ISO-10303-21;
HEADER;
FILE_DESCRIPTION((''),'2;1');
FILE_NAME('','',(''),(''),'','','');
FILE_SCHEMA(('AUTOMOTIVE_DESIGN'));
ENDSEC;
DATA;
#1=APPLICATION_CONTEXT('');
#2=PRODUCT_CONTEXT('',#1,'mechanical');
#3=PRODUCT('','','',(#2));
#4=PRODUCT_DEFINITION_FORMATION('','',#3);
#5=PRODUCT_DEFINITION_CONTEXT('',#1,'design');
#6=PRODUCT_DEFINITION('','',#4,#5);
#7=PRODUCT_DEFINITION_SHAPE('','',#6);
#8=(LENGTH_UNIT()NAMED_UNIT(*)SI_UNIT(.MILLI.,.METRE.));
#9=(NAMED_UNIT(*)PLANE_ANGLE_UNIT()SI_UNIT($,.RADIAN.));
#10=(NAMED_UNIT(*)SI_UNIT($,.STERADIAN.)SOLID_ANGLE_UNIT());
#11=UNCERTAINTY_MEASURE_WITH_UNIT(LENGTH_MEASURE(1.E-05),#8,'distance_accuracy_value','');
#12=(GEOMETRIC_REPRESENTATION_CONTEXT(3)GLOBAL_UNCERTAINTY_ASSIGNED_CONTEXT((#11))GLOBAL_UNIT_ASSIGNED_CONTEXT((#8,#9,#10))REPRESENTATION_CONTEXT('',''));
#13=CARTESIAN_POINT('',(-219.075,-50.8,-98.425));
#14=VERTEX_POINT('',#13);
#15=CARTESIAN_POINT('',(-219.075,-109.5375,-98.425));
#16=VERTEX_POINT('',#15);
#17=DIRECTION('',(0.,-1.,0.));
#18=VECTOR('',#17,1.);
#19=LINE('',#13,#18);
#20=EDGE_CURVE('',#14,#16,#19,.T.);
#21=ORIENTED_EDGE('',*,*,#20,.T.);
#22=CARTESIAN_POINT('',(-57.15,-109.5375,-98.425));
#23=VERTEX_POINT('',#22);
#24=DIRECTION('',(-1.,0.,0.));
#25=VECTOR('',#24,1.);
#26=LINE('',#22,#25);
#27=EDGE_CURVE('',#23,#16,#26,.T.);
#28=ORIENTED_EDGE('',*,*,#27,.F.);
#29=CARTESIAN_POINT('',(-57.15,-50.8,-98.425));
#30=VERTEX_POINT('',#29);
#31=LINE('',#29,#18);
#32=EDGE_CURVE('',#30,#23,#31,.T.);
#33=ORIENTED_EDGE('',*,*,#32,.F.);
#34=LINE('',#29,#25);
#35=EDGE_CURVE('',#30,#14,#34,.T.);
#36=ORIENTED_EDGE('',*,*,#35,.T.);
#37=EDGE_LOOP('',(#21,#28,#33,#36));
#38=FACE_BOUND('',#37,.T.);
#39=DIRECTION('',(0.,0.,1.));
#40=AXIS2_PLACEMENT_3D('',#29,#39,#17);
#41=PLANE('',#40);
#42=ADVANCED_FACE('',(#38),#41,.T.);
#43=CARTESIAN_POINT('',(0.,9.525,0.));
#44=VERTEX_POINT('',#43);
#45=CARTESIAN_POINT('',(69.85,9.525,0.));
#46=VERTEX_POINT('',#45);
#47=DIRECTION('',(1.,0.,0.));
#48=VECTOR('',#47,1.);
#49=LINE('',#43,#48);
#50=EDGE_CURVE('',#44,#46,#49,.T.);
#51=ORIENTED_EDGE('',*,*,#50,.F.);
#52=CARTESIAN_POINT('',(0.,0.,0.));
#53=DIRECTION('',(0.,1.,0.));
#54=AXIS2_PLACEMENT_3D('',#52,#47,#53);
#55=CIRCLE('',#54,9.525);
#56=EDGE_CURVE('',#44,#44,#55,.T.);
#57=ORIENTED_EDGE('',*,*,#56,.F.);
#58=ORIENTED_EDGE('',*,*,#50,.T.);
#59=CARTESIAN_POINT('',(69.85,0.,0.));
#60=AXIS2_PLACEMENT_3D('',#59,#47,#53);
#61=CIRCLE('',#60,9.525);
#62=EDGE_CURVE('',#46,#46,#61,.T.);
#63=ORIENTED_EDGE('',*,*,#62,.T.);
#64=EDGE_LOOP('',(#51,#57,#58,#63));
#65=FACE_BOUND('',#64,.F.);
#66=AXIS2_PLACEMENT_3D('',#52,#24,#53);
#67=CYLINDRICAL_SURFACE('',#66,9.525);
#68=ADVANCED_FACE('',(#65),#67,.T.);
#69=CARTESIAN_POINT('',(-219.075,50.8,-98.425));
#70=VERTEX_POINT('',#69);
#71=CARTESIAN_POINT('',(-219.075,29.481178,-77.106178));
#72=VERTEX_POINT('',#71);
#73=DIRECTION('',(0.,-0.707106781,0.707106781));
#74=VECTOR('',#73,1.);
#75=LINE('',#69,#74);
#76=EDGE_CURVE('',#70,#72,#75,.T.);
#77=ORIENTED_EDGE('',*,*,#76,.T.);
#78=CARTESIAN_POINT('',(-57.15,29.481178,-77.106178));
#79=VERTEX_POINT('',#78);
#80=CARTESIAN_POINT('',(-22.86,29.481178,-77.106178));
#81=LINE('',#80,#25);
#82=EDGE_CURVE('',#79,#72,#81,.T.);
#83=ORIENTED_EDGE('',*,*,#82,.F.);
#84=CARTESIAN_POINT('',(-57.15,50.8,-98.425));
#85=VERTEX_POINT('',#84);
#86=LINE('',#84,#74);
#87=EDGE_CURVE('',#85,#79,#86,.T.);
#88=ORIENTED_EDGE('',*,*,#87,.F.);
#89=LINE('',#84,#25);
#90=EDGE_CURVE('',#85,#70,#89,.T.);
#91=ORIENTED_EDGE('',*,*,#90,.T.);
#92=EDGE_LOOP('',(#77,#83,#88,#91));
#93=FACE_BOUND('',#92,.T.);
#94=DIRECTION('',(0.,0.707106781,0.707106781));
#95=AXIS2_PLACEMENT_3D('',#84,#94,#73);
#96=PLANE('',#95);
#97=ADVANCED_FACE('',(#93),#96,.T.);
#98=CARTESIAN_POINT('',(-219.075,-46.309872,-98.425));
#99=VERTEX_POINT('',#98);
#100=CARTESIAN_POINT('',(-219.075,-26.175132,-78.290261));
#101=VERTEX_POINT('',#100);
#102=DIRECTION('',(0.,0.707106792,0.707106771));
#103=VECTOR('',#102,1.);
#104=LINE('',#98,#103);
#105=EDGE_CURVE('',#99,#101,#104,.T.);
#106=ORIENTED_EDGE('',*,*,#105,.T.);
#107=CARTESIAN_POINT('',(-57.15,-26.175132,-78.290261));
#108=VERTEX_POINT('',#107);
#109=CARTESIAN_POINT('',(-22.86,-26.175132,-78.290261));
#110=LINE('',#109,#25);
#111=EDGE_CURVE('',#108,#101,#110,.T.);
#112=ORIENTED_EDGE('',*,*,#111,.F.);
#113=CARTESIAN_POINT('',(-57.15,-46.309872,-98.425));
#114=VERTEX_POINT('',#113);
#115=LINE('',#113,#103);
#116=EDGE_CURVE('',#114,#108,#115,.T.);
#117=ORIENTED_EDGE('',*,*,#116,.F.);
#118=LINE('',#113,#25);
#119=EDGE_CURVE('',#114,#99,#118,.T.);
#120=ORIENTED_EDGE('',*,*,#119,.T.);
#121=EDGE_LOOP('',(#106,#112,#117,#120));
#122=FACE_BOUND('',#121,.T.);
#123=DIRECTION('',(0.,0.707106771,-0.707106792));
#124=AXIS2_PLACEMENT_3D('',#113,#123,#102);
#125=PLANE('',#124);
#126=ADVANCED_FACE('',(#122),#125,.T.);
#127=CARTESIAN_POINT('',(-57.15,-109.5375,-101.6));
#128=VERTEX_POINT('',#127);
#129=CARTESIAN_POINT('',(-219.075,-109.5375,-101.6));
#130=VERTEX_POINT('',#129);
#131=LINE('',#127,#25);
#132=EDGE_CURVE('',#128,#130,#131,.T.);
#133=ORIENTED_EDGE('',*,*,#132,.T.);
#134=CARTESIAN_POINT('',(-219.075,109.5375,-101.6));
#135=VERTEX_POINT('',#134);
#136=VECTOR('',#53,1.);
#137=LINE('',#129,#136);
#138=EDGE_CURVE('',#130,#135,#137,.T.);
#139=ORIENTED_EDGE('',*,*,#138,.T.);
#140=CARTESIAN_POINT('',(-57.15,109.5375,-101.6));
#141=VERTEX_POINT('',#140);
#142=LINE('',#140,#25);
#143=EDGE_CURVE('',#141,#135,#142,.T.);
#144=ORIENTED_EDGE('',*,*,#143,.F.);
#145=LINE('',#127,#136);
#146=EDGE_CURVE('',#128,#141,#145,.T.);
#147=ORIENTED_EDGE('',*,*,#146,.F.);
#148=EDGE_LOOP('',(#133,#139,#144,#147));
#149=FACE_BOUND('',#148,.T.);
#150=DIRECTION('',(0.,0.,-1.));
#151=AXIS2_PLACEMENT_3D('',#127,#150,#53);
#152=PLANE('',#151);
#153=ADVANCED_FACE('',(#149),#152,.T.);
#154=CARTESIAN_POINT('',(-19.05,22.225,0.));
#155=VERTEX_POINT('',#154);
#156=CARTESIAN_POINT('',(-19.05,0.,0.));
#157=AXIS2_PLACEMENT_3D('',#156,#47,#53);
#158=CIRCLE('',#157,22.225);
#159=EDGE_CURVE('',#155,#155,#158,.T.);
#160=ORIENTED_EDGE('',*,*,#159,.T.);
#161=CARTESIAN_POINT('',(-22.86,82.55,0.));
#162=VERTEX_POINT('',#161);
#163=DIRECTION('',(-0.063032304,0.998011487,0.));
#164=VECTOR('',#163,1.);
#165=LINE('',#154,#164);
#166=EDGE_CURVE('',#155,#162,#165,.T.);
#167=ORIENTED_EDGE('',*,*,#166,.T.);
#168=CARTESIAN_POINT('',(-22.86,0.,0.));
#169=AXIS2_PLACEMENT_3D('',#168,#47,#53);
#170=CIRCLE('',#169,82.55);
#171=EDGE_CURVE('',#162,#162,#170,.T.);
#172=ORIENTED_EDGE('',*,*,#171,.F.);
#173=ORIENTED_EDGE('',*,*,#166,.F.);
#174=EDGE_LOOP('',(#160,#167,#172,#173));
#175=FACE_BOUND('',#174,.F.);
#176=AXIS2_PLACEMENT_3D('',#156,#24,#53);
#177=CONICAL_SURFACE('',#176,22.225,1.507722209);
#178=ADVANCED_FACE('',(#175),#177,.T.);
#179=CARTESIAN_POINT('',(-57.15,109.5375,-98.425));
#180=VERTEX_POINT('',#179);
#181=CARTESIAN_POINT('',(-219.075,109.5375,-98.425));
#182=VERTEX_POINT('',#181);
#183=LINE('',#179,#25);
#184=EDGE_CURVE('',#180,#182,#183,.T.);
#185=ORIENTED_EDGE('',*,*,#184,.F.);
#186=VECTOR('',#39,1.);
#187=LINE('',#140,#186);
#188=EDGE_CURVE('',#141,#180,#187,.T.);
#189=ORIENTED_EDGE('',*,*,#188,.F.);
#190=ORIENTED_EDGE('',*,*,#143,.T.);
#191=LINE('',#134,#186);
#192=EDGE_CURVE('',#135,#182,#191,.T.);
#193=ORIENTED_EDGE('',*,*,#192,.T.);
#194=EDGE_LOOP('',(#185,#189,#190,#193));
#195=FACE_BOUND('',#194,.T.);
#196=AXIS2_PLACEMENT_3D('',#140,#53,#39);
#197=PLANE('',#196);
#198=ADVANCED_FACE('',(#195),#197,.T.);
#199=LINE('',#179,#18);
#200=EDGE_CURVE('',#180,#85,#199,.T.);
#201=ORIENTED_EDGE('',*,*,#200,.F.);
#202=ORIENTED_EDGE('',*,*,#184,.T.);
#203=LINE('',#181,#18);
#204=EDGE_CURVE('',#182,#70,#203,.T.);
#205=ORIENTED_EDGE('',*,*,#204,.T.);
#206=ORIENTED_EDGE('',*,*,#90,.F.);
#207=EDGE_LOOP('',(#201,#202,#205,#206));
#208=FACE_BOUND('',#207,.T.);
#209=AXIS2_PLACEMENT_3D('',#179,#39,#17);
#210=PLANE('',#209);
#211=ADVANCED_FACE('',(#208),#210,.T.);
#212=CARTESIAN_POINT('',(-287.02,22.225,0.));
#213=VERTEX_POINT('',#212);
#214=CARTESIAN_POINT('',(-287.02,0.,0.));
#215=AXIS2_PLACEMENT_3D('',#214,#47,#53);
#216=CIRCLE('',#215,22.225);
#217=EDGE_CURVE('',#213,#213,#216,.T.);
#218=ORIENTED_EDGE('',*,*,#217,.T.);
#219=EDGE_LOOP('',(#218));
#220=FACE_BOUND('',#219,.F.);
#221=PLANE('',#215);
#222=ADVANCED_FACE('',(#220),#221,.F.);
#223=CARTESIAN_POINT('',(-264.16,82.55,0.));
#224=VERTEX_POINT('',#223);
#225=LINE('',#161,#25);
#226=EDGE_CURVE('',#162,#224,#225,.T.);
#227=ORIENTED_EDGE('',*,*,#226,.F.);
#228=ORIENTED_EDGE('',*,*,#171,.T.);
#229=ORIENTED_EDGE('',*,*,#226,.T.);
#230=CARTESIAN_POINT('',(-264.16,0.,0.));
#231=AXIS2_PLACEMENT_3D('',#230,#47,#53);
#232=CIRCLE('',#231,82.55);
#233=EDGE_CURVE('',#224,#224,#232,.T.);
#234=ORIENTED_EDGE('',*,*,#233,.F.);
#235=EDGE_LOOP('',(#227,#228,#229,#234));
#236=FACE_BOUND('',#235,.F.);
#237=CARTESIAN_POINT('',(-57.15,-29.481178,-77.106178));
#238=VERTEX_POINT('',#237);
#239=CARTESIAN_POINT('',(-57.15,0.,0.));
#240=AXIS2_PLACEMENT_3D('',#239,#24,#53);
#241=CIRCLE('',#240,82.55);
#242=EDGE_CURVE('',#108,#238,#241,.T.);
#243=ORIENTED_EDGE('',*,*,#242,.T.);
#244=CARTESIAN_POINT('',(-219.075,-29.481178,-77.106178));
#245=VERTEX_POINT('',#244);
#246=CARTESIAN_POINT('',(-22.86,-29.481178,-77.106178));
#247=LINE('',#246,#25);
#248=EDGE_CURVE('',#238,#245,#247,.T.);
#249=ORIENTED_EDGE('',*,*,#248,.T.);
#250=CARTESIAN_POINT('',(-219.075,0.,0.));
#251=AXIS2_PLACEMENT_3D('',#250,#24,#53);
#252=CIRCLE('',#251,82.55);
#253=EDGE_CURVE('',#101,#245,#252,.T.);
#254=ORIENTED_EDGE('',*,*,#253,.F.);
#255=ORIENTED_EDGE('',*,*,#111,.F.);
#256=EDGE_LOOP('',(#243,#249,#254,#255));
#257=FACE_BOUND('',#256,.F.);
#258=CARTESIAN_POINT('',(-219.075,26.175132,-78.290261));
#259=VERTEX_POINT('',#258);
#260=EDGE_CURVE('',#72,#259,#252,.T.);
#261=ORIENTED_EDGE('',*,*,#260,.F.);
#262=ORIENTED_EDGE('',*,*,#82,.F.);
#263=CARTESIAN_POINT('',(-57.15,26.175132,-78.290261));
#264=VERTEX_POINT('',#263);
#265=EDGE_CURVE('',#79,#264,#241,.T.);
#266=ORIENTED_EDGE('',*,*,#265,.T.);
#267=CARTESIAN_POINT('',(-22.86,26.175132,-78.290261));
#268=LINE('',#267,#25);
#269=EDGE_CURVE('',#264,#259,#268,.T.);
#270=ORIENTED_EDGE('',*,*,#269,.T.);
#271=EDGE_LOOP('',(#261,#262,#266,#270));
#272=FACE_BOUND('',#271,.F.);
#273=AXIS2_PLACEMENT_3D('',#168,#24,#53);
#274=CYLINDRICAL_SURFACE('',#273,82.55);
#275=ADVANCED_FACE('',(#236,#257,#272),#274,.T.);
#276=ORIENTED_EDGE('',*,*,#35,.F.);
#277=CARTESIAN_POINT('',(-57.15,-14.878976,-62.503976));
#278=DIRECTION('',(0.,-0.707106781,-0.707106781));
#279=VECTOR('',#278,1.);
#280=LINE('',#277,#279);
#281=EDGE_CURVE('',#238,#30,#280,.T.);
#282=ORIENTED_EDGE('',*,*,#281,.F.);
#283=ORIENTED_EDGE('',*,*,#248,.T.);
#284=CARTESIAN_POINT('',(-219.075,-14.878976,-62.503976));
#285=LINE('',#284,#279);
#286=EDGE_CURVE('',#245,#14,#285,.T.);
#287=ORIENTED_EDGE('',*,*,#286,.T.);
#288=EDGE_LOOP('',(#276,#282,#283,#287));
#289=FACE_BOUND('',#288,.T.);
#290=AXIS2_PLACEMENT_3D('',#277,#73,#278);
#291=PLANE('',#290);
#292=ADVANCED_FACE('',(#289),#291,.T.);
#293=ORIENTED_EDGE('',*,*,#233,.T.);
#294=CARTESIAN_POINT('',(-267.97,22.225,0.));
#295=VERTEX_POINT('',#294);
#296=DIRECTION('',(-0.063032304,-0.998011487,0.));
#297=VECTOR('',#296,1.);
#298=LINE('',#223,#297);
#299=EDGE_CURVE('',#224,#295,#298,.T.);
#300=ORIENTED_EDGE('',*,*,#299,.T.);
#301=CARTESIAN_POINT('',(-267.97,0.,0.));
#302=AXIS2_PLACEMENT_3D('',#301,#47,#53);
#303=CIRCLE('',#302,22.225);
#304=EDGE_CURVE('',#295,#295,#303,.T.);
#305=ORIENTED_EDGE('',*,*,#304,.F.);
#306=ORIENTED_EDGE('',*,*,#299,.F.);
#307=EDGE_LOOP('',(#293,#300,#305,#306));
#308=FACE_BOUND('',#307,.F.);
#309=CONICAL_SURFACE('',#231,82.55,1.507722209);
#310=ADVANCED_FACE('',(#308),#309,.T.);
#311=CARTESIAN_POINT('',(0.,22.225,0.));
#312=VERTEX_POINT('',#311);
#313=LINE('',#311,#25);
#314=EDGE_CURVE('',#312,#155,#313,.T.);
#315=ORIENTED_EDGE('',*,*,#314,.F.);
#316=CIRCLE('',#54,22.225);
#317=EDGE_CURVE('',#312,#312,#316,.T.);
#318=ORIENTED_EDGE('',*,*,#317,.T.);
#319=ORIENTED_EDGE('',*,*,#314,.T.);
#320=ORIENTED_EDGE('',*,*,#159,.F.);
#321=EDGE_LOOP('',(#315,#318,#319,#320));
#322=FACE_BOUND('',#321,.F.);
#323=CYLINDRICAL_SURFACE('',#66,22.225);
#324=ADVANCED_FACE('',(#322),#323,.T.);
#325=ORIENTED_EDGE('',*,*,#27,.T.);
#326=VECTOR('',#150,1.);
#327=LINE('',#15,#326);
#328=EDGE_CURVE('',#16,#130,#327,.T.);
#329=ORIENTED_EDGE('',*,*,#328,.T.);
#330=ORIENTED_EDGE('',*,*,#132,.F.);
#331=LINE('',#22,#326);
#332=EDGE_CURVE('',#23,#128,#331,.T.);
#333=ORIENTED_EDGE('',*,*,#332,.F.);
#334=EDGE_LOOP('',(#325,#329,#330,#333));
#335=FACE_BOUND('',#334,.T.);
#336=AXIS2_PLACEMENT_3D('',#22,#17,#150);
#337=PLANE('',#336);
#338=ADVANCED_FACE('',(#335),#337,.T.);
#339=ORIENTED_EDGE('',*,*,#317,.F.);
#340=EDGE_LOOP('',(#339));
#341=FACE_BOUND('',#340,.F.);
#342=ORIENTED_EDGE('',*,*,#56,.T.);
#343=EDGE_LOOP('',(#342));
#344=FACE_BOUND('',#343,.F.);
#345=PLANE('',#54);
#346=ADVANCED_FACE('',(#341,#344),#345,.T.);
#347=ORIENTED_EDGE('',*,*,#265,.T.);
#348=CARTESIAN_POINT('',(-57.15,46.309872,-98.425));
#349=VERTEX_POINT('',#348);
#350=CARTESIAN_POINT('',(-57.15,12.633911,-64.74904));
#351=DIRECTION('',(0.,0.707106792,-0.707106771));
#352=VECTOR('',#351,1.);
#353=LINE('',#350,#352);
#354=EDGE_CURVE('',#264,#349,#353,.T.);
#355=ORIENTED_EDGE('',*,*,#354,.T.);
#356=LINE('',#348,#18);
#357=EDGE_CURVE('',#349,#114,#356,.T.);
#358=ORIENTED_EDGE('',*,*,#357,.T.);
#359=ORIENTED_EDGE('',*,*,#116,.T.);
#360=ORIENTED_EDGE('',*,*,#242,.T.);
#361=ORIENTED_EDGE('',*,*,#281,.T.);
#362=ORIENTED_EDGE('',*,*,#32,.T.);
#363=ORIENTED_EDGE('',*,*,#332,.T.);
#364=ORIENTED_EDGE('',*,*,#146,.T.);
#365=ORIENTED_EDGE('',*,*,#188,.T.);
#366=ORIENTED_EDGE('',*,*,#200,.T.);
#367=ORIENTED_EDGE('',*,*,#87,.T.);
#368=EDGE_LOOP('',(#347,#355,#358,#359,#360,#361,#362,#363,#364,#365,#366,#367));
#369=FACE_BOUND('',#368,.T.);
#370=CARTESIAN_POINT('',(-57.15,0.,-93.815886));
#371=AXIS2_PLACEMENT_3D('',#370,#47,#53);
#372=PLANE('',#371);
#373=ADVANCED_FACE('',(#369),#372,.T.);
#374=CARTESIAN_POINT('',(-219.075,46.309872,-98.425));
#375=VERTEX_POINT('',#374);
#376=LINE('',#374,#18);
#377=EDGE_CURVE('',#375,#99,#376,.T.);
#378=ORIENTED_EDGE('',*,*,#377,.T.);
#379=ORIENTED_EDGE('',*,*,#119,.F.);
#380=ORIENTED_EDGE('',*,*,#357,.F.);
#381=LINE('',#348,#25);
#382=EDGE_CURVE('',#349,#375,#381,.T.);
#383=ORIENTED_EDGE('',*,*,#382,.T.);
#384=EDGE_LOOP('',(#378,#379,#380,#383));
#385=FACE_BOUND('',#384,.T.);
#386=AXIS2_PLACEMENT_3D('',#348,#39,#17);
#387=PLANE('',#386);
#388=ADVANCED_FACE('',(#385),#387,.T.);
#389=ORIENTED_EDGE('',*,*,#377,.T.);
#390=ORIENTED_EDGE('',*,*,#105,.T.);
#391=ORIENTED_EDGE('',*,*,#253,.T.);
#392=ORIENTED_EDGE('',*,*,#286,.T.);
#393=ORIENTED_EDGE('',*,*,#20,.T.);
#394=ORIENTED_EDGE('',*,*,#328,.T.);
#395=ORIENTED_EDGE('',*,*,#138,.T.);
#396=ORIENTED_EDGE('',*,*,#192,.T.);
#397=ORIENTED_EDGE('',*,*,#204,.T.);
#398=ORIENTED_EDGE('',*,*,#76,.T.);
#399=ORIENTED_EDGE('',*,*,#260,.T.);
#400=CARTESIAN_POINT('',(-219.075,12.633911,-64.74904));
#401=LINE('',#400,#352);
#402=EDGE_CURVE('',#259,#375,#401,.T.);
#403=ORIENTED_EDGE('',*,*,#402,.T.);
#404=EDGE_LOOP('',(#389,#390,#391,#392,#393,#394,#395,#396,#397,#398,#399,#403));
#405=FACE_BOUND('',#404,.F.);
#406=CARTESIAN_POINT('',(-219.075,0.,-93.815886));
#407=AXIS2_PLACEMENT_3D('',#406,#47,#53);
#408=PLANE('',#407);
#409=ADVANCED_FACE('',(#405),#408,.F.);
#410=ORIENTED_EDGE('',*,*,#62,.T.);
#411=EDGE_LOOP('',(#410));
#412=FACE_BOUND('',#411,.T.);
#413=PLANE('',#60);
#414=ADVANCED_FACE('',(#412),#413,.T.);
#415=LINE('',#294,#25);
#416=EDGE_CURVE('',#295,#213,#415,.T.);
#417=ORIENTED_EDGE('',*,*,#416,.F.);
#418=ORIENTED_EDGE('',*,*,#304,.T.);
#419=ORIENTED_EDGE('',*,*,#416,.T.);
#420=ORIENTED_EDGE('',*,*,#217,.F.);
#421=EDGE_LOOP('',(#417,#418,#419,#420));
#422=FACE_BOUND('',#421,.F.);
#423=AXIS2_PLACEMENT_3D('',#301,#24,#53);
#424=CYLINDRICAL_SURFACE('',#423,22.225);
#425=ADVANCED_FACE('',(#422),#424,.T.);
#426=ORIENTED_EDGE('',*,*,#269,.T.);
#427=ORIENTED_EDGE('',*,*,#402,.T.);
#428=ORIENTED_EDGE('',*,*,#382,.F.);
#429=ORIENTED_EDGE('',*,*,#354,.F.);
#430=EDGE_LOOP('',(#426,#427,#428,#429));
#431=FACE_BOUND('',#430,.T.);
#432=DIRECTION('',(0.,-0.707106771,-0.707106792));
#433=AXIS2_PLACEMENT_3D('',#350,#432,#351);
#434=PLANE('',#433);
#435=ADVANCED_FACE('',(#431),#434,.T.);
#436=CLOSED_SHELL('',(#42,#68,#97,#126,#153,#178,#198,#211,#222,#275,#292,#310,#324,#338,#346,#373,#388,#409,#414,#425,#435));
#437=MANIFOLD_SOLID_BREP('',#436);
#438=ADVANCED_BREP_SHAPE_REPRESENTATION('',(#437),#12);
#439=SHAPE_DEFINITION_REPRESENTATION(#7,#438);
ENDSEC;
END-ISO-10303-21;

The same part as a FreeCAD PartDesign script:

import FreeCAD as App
import Part
import Sketcher
Q = App.Units.Quantity

doc = App.newDocument("Part")
body = doc.addObject("PartDesign::Body", "Body")

# Sketch on XY plane
sketch1 = body.newObject("Sketcher::SketchObject", "Sketch")
sketch1.AttachmentSupport = (doc.getObject("XY_Plane"), [""])
sketch1.MapMode = "FlatFace"
sketch1.addGeometry([
    Part.LineSegment(App.Vector(-287, 0, 0), App.Vector(0, 0, 0)),  # 0
    Part.LineSegment(App.Vector(0, 0, 0), App.Vector(0, 22, 0)),  # 1
    Part.LineSegment(App.Vector(0, 22, 0), App.Vector(-19, 22, 0)),  # 2
    Part.LineSegment(App.Vector(-19, 22, 0), App.Vector(-23, 83, 0)),  # 3
    Part.LineSegment(App.Vector(-23, 83, 0), App.Vector(-264, 83, 0)),  # 4
    Part.LineSegment(App.Vector(-264, 83, 0), App.Vector(-268, 22, 0)),  # 5
    Part.LineSegment(App.Vector(-268, 22, 0), App.Vector(-287, 22, 0)),  # 6
    Part.LineSegment(App.Vector(-287, 22, 0), App.Vector(-287, 0, 0)),  # 7
], False)
sketch1.addConstraint([
    Sketcher.Constraint("Coincident", 0, 2, 1, 1),
    Sketcher.Constraint("Coincident", 1, 2, 2, 1),
    Sketcher.Constraint("Coincident", 2, 2, 3, 1),
    Sketcher.Constraint("Coincident", 3, 2, 4, 1),
    Sketcher.Constraint("Coincident", 4, 2, 5, 1),
    Sketcher.Constraint("Coincident", 5, 2, 6, 1),
    Sketcher.Constraint("Coincident", 6, 2, 7, 1),
    Sketcher.Constraint("Coincident", 7, 2, 0, 1),
    Sketcher.Constraint("Horizontal", 0),
    Sketcher.Constraint("Vertical", 1),
    Sketcher.Constraint("Horizontal", 2),
    Sketcher.Constraint("Horizontal", 4),
    Sketcher.Constraint("Horizontal", 6),
    Sketcher.Constraint("Vertical", 7),
    Sketcher.Constraint("Coincident", 0, 2, -1, 1),
    Sketcher.Constraint("Horizontal", 2, 2, 5, 2),
    Sketcher.Constraint("Equal", 2, 6),
    Sketcher.Constraint("Equal", 3, 5),
    Sketcher.Constraint("DistanceX", 0, 1, 0, 2, Q("11.3 in")),
    Sketcher.Constraint("DistanceX", 4, 2, 4, 1, Q("9.5 in")),
    Sketcher.Constraint("DistanceX", 2, 2, 2, 1, Q("0.75 in")),
    Sketcher.Constraint("DistanceY", 1, 1, 1, 2, Q("0.875 in")),
    Sketcher.Constraint("DistanceY", -1, 1, 3, 2, Q("3.25 in")),
])
revolution = body.newObject("PartDesign::Revolution", "Revolution")
revolution.Profile = sketch1
revolution.ReferenceAxis = (sketch1, ["H_Axis"])
revolution.Angle = 360

# Sketch on YZ plane
sketch2 = body.newObject("Sketcher::SketchObject", "Sketch001")
sketch2.AttachmentSupport = (doc.getObject("YZ_Plane"), [""])
sketch2.MapMode = "FlatFace"
sketch2.addGeometry(Part.Circle(App.Vector(0, 0, 0), App.Vector(0, 0, 1), 10), False)
sketch2.addConstraint([
    Sketcher.Constraint("Coincident", 0, 3, -1, 1),
    Sketcher.Constraint("Diameter", 0, Q("0.75 in")),
])
pad1 = body.newObject("PartDesign::Pad", "Pad")
pad1.Profile = sketch2
pad1.Length = Q("2.75 in")

# Sketch on YZ plane
sketch3 = body.newObject("Sketcher::SketchObject", "Sketch002")
sketch3.AttachmentSupport = (doc.getObject("YZ_Plane"), [""])
sketch3.MapMode = "FlatFace"
sketch3.AttachmentOffset = App.Placement(App.Vector(0, 0, -2.25 * 25.4), App.Rotation())
sketch3.addGeometry([
    Part.LineSegment(App.Vector(-50.8, -98.4, 0), App.Vector(-109.5, -98.4, 0)),  # 0
    Part.LineSegment(App.Vector(-109.5, -98.4, 0), App.Vector(-109.5, -101.6, 0)),  # 1
    Part.LineSegment(App.Vector(-109.5, -101.6, 0), App.Vector(109.5, -101.6, 0)),  # 2
    Part.LineSegment(App.Vector(109.5, -101.6, 0), App.Vector(109.5, -98.4, 0)),  # 3
    Part.LineSegment(App.Vector(109.5, -98.4, 0), App.Vector(50.8, -98.4, 0)),  # 4
    Part.LineSegment(App.Vector(50.8, -98.4, 0), App.Vector(14.9, -62.5, 0)),  # 5
    Part.LineSegment(App.Vector(14.9, -62.5, 0), App.Vector(12.6, -64.7, 0)),  # 6
    Part.LineSegment(App.Vector(12.6, -64.7, 0), App.Vector(46.3, -98.4, 0)),  # 7
    Part.LineSegment(App.Vector(46.3, -98.4, 0), App.Vector(-46.3, -98.4, 0)),  # 8
    Part.LineSegment(App.Vector(-46.3, -98.4, 0), App.Vector(-12.6, -64.7, 0)),  # 9
    Part.LineSegment(App.Vector(-12.6, -64.7, 0), App.Vector(-14.9, -62.5, 0)),  # 10
    Part.LineSegment(App.Vector(-14.9, -62.5, 0), App.Vector(-50.8, -98.4, 0)),  # 11
], False)
sketch3.addConstraint([
    Sketcher.Constraint("Coincident", 0, 2, 1, 1),
    Sketcher.Constraint("Coincident", 1, 2, 2, 1),
    Sketcher.Constraint("Coincident", 2, 2, 3, 1),
    Sketcher.Constraint("Coincident", 3, 2, 4, 1),
    Sketcher.Constraint("Coincident", 4, 2, 5, 1),
    Sketcher.Constraint("Coincident", 5, 2, 6, 1),
    Sketcher.Constraint("Coincident", 6, 2, 7, 1),
    Sketcher.Constraint("Coincident", 7, 2, 8, 1),
    Sketcher.Constraint("Coincident", 8, 2, 9, 1),
    Sketcher.Constraint("Coincident", 9, 2, 10, 1),
    Sketcher.Constraint("Coincident", 10, 2, 11, 1),
    Sketcher.Constraint("Coincident", 11, 2, 0, 1),
    Sketcher.Constraint("Horizontal", 0),
    Sketcher.Constraint("Vertical", 1),
    Sketcher.Constraint("Horizontal", 2),
    Sketcher.Constraint("Vertical", 3),
    Sketcher.Constraint("Horizontal", 4),
    Sketcher.Constraint("Horizontal", 8),
    Sketcher.Constraint("Symmetric", 0, 2, 3, 2, -2),
    Sketcher.Constraint("Symmetric", 6, 2, 9, 2, -2),
    Sketcher.Constraint("Symmetric", 5, 2, 10, 2, -2),
    Sketcher.Constraint("Perpendicular", 5, 6),
    Sketcher.Constraint("Perpendicular", 6, 7),
    Sketcher.Constraint("Perpendicular", 7, 9),
    Sketcher.Constraint("Perpendicular", 9, 10),
    Sketcher.Constraint("Perpendicular", 10, 11),
    Sketcher.Constraint("Horizontal", 4, 2, 7, 2),
    Sketcher.Constraint("Distance", 5, Q("2 in")),
    Sketcher.Constraint("DistanceY", 1, 2, -1, 1, Q("4 in")),
    Sketcher.Constraint("DistanceX", -1, 1, 4, 2, Q("2 in")),
    Sketcher.Constraint("DistanceX", 0, 2, 0, 1, Q("2.3125 in")),
    Sketcher.Constraint("DistanceY", 1, 2, 1, 1, Q("0.125 in")),
    Sketcher.Constraint("Distance", 6, Q("0.125 in")),
])
pad2 = body.newObject("PartDesign::Pad", "Pad001")
pad2.Profile = sketch3
pad2.Length = Q("6.375 in")
pad2.Reversed = True

doc.recompute()
